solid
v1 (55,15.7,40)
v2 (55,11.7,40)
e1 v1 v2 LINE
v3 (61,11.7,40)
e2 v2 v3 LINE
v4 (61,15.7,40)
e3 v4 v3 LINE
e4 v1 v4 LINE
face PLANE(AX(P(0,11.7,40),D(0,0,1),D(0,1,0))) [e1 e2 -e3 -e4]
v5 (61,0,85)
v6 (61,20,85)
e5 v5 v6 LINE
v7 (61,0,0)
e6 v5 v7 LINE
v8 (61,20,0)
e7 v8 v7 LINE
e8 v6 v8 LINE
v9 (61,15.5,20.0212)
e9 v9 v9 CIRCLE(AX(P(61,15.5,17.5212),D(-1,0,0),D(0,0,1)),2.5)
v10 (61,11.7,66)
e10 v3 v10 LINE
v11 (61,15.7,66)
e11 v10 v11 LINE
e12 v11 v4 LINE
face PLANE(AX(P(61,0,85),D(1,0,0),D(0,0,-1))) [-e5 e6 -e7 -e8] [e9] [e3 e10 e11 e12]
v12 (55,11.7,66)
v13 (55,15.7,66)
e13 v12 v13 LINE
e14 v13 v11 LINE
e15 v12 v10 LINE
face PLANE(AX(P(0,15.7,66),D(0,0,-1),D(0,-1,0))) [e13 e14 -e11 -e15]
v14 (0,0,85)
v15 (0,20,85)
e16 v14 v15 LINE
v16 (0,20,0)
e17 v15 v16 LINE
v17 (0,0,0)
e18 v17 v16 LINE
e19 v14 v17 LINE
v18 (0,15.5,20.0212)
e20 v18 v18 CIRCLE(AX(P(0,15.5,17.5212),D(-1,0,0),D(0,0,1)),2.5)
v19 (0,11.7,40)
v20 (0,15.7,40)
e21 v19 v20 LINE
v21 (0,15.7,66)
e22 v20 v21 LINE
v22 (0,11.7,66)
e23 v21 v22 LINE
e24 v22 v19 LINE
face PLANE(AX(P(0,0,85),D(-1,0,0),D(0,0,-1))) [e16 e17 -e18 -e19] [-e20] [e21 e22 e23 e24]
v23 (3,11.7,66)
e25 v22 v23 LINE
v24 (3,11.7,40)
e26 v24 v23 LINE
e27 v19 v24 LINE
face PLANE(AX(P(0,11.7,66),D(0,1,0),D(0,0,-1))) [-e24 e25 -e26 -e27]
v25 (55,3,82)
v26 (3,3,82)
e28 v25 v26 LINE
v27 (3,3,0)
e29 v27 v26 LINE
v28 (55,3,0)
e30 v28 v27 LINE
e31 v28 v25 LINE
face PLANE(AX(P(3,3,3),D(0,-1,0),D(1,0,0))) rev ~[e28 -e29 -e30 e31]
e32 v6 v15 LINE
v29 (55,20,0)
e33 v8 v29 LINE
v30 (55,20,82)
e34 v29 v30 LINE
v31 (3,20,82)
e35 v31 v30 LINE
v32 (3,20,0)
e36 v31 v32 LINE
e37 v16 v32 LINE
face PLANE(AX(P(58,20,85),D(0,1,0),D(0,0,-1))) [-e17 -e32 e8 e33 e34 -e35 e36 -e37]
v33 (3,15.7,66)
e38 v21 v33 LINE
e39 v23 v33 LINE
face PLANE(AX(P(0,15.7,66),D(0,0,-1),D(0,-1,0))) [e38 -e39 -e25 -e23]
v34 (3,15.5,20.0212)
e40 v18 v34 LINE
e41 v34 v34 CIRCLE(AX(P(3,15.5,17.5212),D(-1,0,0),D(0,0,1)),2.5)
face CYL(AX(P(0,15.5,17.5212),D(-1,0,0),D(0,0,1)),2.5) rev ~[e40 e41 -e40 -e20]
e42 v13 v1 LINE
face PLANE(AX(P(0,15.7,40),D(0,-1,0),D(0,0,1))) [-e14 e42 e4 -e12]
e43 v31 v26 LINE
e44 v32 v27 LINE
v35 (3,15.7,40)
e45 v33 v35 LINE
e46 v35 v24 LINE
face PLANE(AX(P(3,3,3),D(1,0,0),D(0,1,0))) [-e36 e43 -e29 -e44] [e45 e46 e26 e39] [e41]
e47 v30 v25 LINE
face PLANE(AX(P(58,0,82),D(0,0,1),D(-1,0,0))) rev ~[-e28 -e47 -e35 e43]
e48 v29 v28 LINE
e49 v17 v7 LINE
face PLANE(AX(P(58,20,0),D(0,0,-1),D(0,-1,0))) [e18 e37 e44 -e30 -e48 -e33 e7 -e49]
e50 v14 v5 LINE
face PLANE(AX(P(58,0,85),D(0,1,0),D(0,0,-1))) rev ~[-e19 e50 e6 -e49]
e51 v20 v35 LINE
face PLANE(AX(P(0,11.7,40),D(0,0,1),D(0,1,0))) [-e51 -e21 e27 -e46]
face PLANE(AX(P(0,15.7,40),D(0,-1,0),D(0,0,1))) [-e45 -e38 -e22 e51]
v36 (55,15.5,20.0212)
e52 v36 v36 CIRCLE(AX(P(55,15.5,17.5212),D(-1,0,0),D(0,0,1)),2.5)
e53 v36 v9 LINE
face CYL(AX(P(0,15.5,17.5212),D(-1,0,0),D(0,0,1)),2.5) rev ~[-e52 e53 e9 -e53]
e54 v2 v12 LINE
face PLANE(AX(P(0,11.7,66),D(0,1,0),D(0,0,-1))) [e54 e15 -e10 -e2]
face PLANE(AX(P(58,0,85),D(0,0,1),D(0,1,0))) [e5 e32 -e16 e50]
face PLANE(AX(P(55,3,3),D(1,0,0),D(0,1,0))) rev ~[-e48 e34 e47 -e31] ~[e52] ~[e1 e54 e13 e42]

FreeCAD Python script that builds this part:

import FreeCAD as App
import Part
import Sketcher


def faces_at(feature, points):
    """Names of the faces that lie closest to the given points."""
    faces = feature.Shape.Faces
    near = lambda p: min(range(len(faces)), key=lambda i: faces[i].distToShape(Part.Vertex(*p))[0])
    return sorted({f"Face{near(p) + 1}" for p in points})


def add_polygon(sketch, points):
    """Adds a closed chain of lines whose ends are joined by coincident constraints."""
    first, n = sketch.GeometryCount, len(points)
    for a, b in zip(points, points[1:] + points[:1]):
        sketch.addGeometry(Part.LineSegment(App.Vector(*a, 0), App.Vector(*b, 0)), False)
    for i in range(n):
        sketch.addConstraint(Sketcher.Constraint("Coincident", first + i, 2, first + (i + 1) % n, 1))

doc = App.newDocument("Part")
body = doc.addObject("PartDesign::Body", "Body")

# Sketch on XZ plane
sketch1 = body.newObject("Sketcher::SketchObject", "Sketch")
sketch1.AttachmentSupport = (doc.getObject("XZ_Plane"), [""])
sketch1.MapMode = "FlatFace"
add_polygon(sketch1, [(58, 0), (0, 0), (0, 85), (58, 85)])  # lines 0-3
sketch1.addConstraint([
    Sketcher.Constraint("Horizontal", 0),
    Sketcher.Constraint("Vertical", 1),
    Sketcher.Constraint("Horizontal", 2),
    Sketcher.Constraint("Vertical", 3),
    Sketcher.Constraint("Coincident", 0, 2, -1, 1),
    Sketcher.Constraint("DistanceX", 0, 2, 0, 1, 58.0),
    Sketcher.Constraint("DistanceY", 1, 1, 1, 2, 85.0),
])
pad1 = body.newObject("PartDesign::Pad", "Pad")
pad1.Profile = sketch1
pad1.Length = 20
pad1.Reversed = True
doc.recompute()

thickness = body.newObject("PartDesign::Thickness", "Thickness")
thickness.Base = (pad1, faces_at(pad1, [(19.333, 20, 28.333)]))
thickness.Value = 3
thickness.Reversed = True
thickness.Join = "Intersection"

# Sketch on XY plane
sketch2 = body.newObject("Sketcher::SketchObject", "Sketch001")
sketch2.AttachmentSupport = (doc.getObject("XY_Plane"), [""])
sketch2.MapMode = "FlatFace"
sketch2.AttachmentOffset = App.Placement(App.Vector(0, 0, 3), App.Rotation())
add_polygon(sketch2, [(3, 20), (3, 3), (55, 3), (55, 20)])  # lines 0-3
sketch2.addConstraint([
    Sketcher.Constraint("Vertical", 0),
    Sketcher.Constraint("Horizontal", 1),
    Sketcher.Constraint("Vertical", 2),
    Sketcher.Constraint("Horizontal", 3),
    Sketcher.Constraint("DistanceX", 1, 1, 1, 2, 52.0),
    Sketcher.Constraint("DistanceY", 0, 2, 0, 1, 17.0),
    Sketcher.Constraint("DistanceX", -1, 1, 0, 2, 3.0),
    Sketcher.Constraint("DistanceY", -1, 1, 0, 2, 3.0),
])
pocket1 = body.newObject("PartDesign::Pocket", "Pocket")
pocket1.Profile = sketch2
pocket1.Length = 10

# Sketch on YZ plane
sketch3 = body.newObject("Sketcher::SketchObject", "Sketch002")
sketch3.AttachmentSupport = (doc.getObject("YZ_Plane"), [""])
sketch3.MapMode = "FlatFace"
sketch3.AttachmentOffset = App.Placement(App.Vector(0, 0, 58), App.Rotation())
add_polygon(sketch3, [(20, 85), (0, 85), (0, 0), (20, 0)])  # lines 0-3
sketch3.addConstraint([
    Sketcher.Constraint("Horizontal", 0),
    Sketcher.Constraint("Vertical", 1),
    Sketcher.Constraint("Horizontal", 2),
    Sketcher.Constraint("Vertical", 3),
    Sketcher.Constraint("Coincident", 1, 2, -1, 1),
    Sketcher.Constraint("DistanceX", 0, 2, 0, 1, 20.0),
    Sketcher.Constraint("DistanceY", 1, 2, 1, 1, 85.0),
])
pad2 = body.newObject("PartDesign::Pad", "Pad001")
pad2.Profile = sketch3
pad2.Length = 3

# Sketch on YZ plane
sketch4 = body.newObject("Sketcher::SketchObject", "Sketch003")
sketch4.AttachmentSupport = (doc.getObject("YZ_Plane"), [""])
sketch4.MapMode = "FlatFace"
add_polygon(sketch4, [(15.7, 66), (15.7, 40), (11.7, 40), (11.7, 66)])  # lines 0-3
sketch4.addConstraint([
    Sketcher.Constraint("Vertical", 0),
    Sketcher.Constraint("Horizontal", 1),
    Sketcher.Constraint("Vertical", 2),
    Sketcher.Constraint("Horizontal", 3),
    Sketcher.Constraint("DistanceX", 1, 2, 1, 1, 4.0),
    Sketcher.Constraint("DistanceY", 0, 2, 0, 1, 26.0),
    Sketcher.Constraint("DistanceX", -1, 1, 1, 2, 11.7),
    Sketcher.Constraint("DistanceY", -1, 1, 0, 2, 40.0),
])
pocket2 = body.newObject("PartDesign::Pocket", "Pocket001")
pocket2.Profile = sketch4
pocket2.Type = "ThroughAll"
pocket2.Reversed = True

# Sketch on YZ plane
sketch5 = body.newObject("Sketcher::SketchObject", "Sketch004")
sketch5.AttachmentSupport = (doc.getObject("YZ_Plane"), [""])
sketch5.MapMode = "FlatFace"
sketch5.addGeometry(Part.Circle(App.Vector(15.5, 17.5, 0), App.Vector(0, 0, 1), 2.5), False)
sketch5.addConstraint([
    Sketcher.Constraint("Diameter", 0, 5.0),
    Sketcher.Constraint("DistanceX", -1, 1, 0, 3, 15.5),
    Sketcher.Constraint("DistanceY", -1, 1, 0, 3, 17.5212),
])
pocket3 = body.newObject("PartDesign::Pocket", "Pocket002")
pocket3.Profile = sketch5
pocket3.Type = "ThroughAll"
pocket3.Reversed = True

doc.recompute()
